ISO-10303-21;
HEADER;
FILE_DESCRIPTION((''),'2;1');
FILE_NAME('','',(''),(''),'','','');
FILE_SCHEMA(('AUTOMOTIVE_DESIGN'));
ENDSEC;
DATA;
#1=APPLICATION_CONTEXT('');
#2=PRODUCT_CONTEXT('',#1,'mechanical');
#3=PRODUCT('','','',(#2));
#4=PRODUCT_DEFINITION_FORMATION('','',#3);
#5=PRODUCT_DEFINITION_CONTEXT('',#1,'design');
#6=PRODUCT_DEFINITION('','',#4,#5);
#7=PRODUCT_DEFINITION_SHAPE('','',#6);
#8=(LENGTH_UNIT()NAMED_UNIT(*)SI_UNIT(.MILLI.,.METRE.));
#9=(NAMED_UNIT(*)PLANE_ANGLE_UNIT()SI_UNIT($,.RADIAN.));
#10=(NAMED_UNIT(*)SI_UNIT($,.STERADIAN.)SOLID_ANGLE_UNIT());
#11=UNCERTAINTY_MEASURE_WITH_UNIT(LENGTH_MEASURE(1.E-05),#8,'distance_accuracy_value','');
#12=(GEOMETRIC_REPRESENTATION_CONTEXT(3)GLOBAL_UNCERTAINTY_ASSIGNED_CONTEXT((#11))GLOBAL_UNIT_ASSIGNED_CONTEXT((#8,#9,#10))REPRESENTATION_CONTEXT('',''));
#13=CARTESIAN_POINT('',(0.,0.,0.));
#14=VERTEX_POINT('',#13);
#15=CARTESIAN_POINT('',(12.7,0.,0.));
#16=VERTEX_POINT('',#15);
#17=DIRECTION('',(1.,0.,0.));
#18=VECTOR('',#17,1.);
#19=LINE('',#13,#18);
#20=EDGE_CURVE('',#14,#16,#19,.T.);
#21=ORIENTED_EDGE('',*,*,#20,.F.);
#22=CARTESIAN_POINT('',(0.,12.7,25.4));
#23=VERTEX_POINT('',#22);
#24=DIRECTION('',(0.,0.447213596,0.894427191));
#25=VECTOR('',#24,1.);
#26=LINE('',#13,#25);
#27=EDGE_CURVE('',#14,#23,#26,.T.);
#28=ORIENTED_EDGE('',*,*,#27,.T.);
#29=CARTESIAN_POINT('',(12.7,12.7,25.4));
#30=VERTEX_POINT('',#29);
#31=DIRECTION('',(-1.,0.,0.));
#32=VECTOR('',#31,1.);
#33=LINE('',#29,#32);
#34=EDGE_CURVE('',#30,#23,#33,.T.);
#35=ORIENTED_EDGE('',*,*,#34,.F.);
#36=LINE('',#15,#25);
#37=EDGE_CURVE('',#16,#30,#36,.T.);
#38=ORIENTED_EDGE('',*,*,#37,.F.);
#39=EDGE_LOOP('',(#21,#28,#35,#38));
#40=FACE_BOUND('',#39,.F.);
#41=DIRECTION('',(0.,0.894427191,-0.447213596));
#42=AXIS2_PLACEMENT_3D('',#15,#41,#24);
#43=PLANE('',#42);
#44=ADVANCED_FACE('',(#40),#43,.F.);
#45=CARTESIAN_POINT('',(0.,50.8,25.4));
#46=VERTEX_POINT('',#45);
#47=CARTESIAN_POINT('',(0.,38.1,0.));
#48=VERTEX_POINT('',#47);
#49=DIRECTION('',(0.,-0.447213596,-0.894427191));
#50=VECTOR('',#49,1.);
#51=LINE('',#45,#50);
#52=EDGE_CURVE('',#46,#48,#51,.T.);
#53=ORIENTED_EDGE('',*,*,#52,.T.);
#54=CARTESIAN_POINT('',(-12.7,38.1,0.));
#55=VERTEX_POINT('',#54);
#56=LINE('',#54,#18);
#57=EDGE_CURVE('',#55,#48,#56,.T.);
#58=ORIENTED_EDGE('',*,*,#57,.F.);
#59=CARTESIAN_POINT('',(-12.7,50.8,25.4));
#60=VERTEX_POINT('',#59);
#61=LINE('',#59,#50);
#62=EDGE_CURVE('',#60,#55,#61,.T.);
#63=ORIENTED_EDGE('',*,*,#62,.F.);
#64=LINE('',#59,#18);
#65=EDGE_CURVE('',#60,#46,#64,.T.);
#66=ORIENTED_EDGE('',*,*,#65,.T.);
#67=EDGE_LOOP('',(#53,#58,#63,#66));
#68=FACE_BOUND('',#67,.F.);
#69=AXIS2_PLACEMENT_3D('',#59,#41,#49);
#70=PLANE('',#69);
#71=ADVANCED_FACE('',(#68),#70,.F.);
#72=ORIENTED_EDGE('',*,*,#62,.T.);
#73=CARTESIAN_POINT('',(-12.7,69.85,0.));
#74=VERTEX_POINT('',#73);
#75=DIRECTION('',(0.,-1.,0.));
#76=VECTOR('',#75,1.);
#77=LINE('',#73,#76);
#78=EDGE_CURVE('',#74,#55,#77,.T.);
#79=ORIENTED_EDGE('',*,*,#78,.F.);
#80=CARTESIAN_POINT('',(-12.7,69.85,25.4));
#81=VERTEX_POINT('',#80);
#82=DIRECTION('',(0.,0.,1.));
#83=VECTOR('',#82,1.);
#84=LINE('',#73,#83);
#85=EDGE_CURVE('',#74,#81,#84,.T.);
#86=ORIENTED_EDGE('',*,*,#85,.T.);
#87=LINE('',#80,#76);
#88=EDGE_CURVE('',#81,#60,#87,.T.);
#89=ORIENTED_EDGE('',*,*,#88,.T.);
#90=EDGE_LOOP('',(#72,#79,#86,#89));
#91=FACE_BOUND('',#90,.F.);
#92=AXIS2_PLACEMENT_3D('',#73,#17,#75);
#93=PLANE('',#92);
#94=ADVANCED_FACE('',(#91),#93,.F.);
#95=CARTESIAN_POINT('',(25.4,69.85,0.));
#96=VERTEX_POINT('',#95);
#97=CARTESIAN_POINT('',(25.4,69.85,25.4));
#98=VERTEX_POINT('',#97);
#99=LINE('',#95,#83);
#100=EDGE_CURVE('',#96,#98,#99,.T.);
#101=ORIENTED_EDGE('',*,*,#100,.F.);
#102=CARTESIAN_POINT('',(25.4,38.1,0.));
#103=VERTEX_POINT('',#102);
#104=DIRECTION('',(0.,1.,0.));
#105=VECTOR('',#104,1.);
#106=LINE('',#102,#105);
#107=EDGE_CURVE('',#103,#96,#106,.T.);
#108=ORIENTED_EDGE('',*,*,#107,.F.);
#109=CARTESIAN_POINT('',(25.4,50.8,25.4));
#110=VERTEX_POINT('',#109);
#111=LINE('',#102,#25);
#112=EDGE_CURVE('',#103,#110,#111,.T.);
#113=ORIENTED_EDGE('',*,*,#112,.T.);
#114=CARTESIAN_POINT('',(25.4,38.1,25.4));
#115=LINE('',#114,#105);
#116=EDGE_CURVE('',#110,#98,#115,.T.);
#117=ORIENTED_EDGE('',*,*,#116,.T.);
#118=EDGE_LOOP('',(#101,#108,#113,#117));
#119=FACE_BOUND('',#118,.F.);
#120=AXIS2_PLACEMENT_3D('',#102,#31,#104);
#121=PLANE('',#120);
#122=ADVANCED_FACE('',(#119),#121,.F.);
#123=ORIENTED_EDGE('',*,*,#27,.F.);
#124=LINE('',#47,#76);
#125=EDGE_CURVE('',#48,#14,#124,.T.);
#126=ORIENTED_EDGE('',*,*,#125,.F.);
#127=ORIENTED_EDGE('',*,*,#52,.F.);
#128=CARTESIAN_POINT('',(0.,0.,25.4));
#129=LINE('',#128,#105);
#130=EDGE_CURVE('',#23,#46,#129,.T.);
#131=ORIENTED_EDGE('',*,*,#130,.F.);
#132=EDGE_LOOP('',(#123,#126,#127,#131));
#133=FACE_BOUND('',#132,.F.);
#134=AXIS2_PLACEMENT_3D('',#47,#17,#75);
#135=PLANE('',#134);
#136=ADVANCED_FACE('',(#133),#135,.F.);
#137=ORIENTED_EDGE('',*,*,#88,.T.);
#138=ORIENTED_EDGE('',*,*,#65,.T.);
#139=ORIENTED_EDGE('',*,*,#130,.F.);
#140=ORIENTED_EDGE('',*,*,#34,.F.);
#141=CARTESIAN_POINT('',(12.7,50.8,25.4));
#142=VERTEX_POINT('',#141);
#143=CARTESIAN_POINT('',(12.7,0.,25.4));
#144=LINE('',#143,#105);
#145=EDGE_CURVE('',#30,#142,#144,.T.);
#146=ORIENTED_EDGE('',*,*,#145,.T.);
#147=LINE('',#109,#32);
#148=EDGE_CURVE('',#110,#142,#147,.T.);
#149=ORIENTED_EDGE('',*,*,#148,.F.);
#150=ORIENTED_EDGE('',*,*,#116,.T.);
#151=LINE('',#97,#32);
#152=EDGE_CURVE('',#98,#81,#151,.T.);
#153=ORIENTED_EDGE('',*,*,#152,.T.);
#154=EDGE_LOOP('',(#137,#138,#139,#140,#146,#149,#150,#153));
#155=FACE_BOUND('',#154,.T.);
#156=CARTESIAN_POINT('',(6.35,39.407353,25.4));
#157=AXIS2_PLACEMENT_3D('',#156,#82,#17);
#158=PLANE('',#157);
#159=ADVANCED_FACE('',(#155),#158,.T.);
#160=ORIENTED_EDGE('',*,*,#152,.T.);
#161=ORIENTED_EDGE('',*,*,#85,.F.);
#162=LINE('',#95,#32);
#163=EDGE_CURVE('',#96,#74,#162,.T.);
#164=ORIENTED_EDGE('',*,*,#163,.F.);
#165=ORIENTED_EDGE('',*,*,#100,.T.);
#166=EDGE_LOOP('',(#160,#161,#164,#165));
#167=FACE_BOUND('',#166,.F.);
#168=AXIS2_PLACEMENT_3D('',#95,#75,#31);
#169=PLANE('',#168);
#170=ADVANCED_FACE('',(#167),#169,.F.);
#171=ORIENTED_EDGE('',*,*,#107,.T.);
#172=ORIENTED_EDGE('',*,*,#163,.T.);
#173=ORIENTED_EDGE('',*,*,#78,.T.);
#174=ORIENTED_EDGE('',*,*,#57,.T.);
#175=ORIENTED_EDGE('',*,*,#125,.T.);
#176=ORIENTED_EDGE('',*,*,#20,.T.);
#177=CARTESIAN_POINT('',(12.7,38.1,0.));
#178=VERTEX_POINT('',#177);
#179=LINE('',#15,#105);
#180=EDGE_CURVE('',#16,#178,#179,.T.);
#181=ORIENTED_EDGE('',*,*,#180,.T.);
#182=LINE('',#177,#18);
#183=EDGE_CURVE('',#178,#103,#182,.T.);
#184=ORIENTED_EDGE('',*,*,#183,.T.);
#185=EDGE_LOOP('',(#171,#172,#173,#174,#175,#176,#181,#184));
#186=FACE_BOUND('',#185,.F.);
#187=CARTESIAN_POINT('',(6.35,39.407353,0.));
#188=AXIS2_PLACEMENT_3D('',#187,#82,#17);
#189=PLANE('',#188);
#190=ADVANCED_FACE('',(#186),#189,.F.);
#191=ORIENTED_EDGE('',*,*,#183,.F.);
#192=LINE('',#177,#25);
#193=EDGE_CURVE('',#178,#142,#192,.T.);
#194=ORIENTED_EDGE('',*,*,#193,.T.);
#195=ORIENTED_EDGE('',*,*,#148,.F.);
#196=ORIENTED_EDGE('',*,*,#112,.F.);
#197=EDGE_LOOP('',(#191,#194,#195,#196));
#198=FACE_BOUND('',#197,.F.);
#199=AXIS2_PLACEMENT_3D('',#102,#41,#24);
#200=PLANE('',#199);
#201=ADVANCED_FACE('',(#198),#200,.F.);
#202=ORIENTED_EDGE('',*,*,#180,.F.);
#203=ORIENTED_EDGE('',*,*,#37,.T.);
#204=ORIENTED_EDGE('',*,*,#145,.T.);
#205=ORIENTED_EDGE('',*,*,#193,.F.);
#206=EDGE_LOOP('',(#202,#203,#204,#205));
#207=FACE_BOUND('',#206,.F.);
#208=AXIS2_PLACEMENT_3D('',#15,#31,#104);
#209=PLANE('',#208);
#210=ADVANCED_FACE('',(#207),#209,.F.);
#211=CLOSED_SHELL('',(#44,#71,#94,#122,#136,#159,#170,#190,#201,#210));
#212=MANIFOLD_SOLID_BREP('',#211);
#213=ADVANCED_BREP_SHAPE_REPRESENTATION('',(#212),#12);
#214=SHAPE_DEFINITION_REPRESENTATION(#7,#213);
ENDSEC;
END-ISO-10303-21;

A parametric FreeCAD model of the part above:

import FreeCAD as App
import Part
import Sketcher
from FreeCAD import Vector
Q = App.Units.Quantity


def add_polygon(sketch, points):
    """Adds a closed chain of lines whose ends are joined by coincident constraints."""
    first, n = sketch.GeometryCount, len(points)
    for a, b in zip(points, points[1:] + points[:1]):
        sketch.addGeometry(Part.LineSegment(App.Vector(*a, 0), App.Vector(*b, 0)), False)
    for i in range(n):
        sketch.addConstraint(Sketcher.Constraint("Coincident", first + i, 2, first + (i + 1) % n, 1))

doc = App.newDocument("Part")
body = doc.addObject("PartDesign::Body", "Body")

# Sketch on XY plane
sketch1 = body.newObject("Sketcher::SketchObject", "Sketch")
sketch1.AttachmentSupport = (doc.getObject("XY_Plane"), [""])
sketch1.MapMode = "FlatFace"
add_polygon(sketch1, [(0, 38), (0, 0), (13, 0), (13, 38), (25, 38), (25, 70), (-13, 70), (-13, 38)])  # lines 0-7
sketch1.addConstraint(Sketcher.Constraint("Vertical", 0))
sketch1.addConstraint(Sketcher.Constraint("Horizontal", 1))
sketch1.addConstraint(Sketcher.Constraint("Vertical", 2))
sketch1.addConstraint(Sketcher.Constraint("Horizontal", 3))
sketch1.addConstraint(Sketcher.Constraint("Vertical", 4))
sketch1.addConstraint(Sketcher.Constraint("Horizontal", 5))
sketch1.addConstraint(Sketcher.Constraint("Vertical", 6))
sketch1.addConstraint(Sketcher.Constraint("Horizontal", 7))
sketch1.addConstraint(Sketcher.Constraint("Coincident", 0, 2, -1, 1))
sketch1.addConstraint(Sketcher.Constraint("Symmetric", 2, 2, 6, 2, -2))
sketch1.addConstraint(Sketcher.Constraint("Equal", 1, 3))
sketch1.addConstraint(Sketcher.Constraint("Equal", 5, 0))
sketch1.addConstraint(Sketcher.Constraint("DistanceX", 1, 1, 1, 2, Q("0.5 in")))
sketch1.addConstraint(Sketcher.Constraint("DistanceY", 4, 1, 4, 2, Q("1.25 in")))
pad1 = body.newObject("PartDesign::Pad", "Pad")
pad1.Profile = sketch1
pad1.Length = Q("1 in")

# Sketch on YZ plane
sketch2 = body.newObject("Sketcher::SketchObject", "Sketch001")
sketch2.AttachmentSupport = (doc.getObject("YZ_Plane"), [""])
sketch2.MapMode = "FlatFace"
sketch2.AttachmentOffset = App.Placement(Vector(0, 0, -0.5 * 25.4), App.Rotation())
add_polygon(sketch2, [(51, 25), (38, 0), (38, 25)])  # lines 0-2
sketch2.addConstraint(Sketcher.Constraint("Vertical", 1))
sketch2.addConstraint(Sketcher.Constraint("Horizontal", 2))
sketch2.addConstraint(Sketcher.Constraint("PointOnObject", 0, 2, -1))
sketch2.addConstraint(Sketcher.Constraint("DistanceY", 1, 1, 1, 2, Q("1 in")))
sketch2.addConstraint(Sketcher.Constraint("DistanceX", 2, 1, 2, 2, Q("0.5 in")))
sketch2.addConstraint(Sketcher.Constraint("DistanceX", -1, 1, 2, 2, Q("2 in")))
pocket1 = body.newObject("PartDesign::Pocket", "Pocket")
pocket1.Profile = sketch2
pocket1.Length = Q("0.5 in")
pocket1.Reversed = True

# Sketch on YZ plane
sketch3 = body.newObject("Sketcher::SketchObject", "Sketch002")
sketch3.AttachmentSupport = (doc.getObject("YZ_Plane"), [""])
sketch3.MapMode = "FlatFace"
sketch3.AttachmentOffset = App.Placement(Vector(0, 0, 1 * 25.4), App.Rotation())
add_polygon(sketch3, [(51, 25), (38, 25), (38, 0)])  # lines 0-2
sketch3.addConstraint(Sketcher.Constraint("Horizontal", 0))
sketch3.addConstraint(Sketcher.Constraint("Vertical", 1))
sketch3.addConstraint(Sketcher.Constraint("PointOnObject", 1, 2, -1))
sketch3.addConstraint(Sketcher.Constraint("DistanceY", 1, 2, 1, 1, Q("1 in")))
sketch3.addConstraint(Sketcher.Constraint("DistanceX", 0, 2, 0, 1, Q("0.5 in")))
sketch3.addConstraint(Sketcher.Constraint("DistanceX", -1, 1, 2, 2, Q("2 in")))
pocket2 = body.newObject("PartDesign::Pocket", "Pocket001")
pocket2.Profile = sketch3
pocket2.Length = Q("0.5 in")

# Sketch on YZ plane
sketch4 = body.newObject("Sketcher::SketchObject", "Sketch003")
sketch4.AttachmentSupport = (doc.getObject("YZ_Plane"), [""])
sketch4.MapMode = "FlatFace"
sketch4.AttachmentOffset = App.Placement(Vector(0, 0, 0.5 * 25.4), App.Rotation())
add_polygon(sketch4, [(13, 25), (0, 25), (0, 0)])  # lines 0-2
sketch4.addConstraint(Sketcher.Constraint("Horizontal", 0))
sketch4.addConstraint(Sketcher.Constraint("Vertical", 1))
sketch4.addConstraint(Sketcher.Constraint("Coincident", 1, 2, -1, 1))
sketch4.addConstraint(Sketcher.Constraint("DistanceY", 1, 2, 1, 1, Q("1 in")))
sketch4.addConstraint(Sketcher.Constraint("DistanceX", 0, 2, 0, 1, Q("0.5 in")))
pocket3 = body.newObject("PartDesign::Pocket", "Pocket002")
pocket3.Profile = sketch4
pocket3.Length = Q("0.5 in")

doc.recompute()
